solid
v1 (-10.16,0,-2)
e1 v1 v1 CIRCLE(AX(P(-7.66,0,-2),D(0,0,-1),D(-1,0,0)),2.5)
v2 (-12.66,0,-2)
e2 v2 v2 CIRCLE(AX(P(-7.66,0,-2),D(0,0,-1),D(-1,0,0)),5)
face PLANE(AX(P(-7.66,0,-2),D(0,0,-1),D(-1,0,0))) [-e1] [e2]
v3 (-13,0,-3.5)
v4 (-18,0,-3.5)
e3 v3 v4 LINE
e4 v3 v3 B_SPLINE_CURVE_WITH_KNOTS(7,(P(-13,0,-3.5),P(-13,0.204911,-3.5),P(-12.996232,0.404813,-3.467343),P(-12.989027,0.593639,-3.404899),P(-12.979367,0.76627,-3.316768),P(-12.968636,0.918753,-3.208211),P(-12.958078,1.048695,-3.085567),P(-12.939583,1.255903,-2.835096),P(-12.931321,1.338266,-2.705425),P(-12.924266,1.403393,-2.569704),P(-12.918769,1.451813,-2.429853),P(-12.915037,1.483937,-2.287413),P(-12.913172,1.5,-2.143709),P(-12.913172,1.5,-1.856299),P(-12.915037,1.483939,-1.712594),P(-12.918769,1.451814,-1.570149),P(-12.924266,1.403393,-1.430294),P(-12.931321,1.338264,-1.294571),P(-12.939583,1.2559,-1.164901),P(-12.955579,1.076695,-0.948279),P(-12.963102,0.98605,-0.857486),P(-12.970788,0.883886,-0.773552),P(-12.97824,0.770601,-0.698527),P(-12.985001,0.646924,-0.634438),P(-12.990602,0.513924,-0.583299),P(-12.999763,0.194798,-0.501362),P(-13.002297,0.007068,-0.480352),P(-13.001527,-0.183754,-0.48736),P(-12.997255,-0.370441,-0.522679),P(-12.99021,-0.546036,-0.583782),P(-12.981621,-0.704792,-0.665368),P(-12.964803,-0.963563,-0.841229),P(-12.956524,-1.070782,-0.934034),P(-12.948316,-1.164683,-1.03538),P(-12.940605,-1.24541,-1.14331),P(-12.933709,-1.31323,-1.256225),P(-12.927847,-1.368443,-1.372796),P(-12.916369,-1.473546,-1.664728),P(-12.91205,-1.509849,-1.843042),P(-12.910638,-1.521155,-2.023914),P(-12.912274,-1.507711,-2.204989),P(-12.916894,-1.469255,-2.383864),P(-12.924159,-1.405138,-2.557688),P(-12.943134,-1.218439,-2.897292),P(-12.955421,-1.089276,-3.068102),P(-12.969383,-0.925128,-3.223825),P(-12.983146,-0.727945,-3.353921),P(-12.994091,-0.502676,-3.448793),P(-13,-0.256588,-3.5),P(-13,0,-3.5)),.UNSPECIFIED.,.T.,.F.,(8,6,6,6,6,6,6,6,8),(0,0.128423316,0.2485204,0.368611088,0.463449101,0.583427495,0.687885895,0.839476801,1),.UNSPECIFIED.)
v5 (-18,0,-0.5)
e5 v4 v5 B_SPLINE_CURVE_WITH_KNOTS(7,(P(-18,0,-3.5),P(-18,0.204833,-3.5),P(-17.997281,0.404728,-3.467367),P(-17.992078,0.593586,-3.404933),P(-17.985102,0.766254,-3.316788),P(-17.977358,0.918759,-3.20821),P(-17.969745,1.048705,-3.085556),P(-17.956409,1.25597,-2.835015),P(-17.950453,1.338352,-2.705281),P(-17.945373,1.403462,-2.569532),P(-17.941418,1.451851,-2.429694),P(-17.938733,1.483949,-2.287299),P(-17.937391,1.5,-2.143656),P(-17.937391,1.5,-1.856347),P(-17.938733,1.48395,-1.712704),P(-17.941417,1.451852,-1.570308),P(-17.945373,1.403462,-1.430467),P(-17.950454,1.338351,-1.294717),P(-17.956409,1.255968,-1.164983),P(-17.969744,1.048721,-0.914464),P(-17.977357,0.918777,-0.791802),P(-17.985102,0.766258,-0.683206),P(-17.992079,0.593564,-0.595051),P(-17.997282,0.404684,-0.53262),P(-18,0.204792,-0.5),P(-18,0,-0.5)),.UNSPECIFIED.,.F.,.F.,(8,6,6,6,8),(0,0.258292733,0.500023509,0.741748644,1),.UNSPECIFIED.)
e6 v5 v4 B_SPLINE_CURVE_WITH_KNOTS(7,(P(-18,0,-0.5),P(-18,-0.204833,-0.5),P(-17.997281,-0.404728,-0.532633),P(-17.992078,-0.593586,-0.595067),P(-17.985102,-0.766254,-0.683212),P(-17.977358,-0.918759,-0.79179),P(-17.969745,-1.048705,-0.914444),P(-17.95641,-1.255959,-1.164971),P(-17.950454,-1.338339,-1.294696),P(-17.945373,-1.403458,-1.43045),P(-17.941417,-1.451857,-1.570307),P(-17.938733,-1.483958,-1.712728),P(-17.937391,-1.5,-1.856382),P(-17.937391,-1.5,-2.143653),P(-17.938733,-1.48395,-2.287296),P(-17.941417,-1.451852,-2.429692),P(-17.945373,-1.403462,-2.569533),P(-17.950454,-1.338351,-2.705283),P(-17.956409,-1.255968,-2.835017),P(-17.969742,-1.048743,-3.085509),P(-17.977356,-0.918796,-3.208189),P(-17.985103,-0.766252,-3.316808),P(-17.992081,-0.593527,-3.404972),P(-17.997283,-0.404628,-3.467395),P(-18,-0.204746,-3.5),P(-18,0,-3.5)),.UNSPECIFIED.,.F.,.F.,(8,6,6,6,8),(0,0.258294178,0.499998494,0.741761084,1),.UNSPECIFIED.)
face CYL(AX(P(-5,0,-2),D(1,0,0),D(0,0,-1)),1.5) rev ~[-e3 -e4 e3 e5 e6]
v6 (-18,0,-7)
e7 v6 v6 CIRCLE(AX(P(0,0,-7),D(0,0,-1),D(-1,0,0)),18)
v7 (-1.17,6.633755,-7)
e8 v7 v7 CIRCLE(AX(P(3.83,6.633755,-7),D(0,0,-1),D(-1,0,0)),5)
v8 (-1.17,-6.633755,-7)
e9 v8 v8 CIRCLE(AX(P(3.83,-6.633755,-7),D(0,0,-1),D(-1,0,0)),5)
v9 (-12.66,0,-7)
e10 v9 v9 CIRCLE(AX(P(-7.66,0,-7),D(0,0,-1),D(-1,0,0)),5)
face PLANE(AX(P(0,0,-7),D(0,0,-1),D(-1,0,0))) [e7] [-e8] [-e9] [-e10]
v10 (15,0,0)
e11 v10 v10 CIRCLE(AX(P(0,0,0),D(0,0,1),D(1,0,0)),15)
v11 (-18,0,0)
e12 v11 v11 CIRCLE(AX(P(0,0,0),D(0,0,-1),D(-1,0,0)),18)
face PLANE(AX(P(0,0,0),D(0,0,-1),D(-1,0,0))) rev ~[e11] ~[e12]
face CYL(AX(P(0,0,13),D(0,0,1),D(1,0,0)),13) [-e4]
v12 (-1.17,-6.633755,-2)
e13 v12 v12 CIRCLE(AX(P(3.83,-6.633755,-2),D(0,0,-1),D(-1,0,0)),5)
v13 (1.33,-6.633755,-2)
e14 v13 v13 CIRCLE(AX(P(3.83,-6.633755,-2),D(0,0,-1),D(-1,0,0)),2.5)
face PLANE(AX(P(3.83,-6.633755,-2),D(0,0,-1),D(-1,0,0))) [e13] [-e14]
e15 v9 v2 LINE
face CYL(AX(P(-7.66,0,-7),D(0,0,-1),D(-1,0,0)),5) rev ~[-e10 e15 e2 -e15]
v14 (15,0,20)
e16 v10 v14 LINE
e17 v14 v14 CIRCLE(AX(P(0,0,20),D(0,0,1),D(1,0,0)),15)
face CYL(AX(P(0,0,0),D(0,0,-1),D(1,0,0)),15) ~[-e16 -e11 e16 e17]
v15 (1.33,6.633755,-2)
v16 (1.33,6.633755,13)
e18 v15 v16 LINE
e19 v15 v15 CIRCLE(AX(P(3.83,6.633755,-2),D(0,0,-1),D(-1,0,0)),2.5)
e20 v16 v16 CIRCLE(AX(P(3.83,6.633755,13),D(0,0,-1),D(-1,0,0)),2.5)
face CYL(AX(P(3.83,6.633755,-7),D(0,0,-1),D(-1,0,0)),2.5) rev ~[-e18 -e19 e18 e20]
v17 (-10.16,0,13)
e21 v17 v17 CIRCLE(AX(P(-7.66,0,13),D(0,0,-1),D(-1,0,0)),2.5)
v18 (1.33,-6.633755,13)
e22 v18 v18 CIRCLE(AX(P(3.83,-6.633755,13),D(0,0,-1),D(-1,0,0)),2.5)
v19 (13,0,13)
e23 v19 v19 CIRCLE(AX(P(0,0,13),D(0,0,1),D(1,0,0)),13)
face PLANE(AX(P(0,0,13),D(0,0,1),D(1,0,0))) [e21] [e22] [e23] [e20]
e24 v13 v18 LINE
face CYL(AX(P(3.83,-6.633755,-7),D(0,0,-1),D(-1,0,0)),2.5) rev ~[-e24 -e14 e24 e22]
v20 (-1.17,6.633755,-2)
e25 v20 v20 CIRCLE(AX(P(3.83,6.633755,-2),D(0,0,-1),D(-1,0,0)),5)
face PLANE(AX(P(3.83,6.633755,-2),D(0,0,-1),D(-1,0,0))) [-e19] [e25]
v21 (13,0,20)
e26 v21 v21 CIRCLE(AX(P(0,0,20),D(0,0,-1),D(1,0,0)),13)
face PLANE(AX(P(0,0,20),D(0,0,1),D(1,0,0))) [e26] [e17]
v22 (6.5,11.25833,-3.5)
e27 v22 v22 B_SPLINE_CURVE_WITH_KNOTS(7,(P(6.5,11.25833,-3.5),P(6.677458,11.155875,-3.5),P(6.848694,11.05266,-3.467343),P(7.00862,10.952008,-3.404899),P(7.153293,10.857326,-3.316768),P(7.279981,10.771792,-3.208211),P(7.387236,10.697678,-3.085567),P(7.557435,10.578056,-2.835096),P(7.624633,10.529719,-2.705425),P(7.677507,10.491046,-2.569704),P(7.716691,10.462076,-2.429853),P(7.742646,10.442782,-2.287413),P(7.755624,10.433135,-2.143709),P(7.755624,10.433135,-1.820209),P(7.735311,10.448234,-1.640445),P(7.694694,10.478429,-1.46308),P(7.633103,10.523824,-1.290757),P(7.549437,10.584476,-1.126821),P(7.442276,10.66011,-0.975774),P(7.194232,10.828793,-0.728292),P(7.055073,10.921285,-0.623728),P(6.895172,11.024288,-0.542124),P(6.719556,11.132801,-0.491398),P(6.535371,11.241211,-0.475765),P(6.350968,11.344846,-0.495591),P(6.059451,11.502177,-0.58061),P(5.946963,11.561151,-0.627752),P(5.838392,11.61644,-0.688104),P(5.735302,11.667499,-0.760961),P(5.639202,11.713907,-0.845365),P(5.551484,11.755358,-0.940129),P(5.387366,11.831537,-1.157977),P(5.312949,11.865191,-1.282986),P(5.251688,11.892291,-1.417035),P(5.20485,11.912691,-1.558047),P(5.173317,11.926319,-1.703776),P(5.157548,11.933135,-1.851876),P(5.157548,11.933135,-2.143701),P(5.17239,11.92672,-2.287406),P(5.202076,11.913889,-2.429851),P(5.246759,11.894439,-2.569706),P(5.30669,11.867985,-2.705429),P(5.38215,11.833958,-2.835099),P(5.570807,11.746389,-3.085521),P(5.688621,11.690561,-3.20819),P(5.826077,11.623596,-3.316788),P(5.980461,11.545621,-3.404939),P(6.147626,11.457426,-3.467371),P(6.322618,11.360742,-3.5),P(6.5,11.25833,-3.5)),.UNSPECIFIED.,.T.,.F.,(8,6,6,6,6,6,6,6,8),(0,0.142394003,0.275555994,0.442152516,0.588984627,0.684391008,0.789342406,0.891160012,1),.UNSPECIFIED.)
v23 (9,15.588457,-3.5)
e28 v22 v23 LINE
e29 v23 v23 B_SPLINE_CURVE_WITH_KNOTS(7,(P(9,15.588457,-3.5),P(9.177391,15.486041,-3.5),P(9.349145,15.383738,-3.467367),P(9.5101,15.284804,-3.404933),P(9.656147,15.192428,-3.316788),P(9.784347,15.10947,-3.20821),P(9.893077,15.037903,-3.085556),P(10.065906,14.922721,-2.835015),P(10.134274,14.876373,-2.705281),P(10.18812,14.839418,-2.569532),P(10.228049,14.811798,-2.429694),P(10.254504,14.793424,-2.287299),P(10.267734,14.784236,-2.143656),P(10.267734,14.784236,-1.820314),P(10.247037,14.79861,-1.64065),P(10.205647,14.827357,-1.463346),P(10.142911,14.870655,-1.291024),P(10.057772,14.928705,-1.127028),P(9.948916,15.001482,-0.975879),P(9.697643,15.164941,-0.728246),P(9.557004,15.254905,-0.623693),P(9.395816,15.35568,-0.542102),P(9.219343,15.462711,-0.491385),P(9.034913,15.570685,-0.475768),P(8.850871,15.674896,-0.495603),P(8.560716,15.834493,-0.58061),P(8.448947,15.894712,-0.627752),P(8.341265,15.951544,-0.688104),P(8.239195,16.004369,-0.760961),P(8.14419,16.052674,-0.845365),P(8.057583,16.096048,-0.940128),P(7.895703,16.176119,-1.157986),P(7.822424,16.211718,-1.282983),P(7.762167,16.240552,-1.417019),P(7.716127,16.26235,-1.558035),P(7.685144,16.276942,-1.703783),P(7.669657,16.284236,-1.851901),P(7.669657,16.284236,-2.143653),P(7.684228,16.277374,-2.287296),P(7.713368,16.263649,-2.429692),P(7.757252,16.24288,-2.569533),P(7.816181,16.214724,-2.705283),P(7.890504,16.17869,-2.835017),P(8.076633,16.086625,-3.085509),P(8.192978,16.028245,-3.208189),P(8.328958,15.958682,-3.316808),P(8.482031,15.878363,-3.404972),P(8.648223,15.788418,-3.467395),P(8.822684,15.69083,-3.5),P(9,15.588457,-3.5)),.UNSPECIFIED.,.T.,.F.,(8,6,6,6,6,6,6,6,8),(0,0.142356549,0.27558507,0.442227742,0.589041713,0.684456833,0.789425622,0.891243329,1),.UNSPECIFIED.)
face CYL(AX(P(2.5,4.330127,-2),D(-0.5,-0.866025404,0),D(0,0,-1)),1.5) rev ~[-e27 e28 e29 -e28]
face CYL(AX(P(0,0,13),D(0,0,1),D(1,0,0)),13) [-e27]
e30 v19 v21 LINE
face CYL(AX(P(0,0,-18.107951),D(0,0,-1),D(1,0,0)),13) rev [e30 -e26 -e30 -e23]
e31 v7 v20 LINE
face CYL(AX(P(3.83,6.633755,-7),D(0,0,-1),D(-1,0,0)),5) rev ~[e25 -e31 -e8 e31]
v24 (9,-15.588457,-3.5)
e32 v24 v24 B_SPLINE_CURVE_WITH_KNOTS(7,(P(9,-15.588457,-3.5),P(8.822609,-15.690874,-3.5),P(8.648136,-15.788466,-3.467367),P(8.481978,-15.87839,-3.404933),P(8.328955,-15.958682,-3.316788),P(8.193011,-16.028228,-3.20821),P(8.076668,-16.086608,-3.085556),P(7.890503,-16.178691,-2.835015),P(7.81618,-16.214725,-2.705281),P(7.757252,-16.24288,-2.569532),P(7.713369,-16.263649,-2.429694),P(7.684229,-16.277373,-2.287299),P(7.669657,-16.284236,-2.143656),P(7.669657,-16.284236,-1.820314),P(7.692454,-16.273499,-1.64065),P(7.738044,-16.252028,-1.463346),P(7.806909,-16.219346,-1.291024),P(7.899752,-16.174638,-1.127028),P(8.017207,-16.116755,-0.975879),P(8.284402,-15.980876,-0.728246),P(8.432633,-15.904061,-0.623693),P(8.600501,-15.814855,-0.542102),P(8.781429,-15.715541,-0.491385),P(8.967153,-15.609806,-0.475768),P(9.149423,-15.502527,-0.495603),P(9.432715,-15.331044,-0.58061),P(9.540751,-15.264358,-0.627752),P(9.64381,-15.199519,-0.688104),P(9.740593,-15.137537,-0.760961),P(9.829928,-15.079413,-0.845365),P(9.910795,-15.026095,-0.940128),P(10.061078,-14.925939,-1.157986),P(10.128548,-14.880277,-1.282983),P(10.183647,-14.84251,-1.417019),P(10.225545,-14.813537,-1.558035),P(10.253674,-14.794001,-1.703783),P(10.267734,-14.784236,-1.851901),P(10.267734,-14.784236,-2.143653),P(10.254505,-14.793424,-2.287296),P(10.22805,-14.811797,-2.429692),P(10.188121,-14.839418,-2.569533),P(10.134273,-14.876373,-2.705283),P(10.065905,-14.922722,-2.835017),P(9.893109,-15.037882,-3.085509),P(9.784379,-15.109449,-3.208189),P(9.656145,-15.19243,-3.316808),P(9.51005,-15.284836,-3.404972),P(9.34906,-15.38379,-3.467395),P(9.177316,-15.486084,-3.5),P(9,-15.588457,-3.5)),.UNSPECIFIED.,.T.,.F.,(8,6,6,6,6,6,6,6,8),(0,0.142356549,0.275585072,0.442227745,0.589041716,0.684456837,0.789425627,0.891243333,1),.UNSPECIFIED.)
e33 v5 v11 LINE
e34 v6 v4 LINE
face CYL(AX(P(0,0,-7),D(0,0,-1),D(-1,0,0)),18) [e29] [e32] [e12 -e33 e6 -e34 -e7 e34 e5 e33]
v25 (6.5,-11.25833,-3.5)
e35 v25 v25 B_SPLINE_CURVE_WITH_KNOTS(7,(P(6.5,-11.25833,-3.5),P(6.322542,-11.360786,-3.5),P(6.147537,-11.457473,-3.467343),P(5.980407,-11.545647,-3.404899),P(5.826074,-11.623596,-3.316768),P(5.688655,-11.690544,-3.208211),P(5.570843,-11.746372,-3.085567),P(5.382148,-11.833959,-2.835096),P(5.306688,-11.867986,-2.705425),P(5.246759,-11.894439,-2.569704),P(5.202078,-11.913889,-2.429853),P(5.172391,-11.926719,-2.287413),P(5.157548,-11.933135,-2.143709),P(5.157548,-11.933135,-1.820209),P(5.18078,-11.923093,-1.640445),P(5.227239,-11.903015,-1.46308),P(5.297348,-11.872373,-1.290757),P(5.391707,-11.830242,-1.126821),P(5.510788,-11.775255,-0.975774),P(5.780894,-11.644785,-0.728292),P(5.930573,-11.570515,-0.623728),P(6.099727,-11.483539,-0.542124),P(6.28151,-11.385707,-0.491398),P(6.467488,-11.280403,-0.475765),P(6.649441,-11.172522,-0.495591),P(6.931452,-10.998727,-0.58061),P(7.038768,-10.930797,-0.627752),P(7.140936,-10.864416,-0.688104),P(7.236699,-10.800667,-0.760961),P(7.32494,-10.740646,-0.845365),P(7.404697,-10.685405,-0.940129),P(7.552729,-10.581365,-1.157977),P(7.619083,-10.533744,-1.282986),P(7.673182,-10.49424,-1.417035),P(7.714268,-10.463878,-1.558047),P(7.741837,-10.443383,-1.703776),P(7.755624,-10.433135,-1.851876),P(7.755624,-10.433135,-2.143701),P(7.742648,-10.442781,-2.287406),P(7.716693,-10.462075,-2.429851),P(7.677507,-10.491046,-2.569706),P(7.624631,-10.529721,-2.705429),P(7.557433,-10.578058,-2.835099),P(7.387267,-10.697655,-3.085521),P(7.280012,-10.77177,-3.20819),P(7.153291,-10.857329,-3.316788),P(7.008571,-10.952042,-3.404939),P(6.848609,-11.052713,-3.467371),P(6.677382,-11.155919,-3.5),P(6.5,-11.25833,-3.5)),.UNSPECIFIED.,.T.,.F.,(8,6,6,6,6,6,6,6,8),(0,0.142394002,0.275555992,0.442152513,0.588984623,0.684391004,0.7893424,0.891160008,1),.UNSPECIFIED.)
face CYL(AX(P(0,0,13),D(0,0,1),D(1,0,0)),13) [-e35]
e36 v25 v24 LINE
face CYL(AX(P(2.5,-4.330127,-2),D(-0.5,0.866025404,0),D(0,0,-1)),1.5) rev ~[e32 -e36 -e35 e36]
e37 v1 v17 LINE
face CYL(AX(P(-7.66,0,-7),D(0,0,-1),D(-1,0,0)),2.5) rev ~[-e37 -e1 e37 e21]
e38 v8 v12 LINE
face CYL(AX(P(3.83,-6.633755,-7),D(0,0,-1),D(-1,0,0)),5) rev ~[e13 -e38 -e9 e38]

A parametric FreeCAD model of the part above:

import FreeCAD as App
import Part
import Sketcher
from FreeCAD import Vector
Q = App.Units.Quantity

doc = App.newDocument("Part")
body = doc.addObject("PartDesign::Body", "Body")

sketch1 = doc.addObject("Sketcher::SketchObject", "Sketch")
body.addObject(sketch1)
sketch1.AttachmentSupport = (doc.XY_Plane, [""])
sketch1.MapMode = "FlatFace"
sketch1.addGeometry(Part.Circle(Vector(0, 0, 0), Vector(0, 0, 1), 15), False)
sketch1.addConstraint([
    Sketcher.Constraint("Coincident", 0, 3, -1, 1),
    Sketcher.Constraint("Diameter", 0, Q("30 mm")),
])
pad1 = doc.addObject("PartDesign::Pad", "Pad")
body.addObject(pad1)
pad1.Profile = sketch1
pad1.Length = 20

sketch2 = doc.addObject("Sketcher::SketchObject", "Sketch001")
body.addObject(sketch2)
sketch2.AttachmentSupport = (doc.XY_Plane, [""])
sketch2.MapMode = "FlatFace"
sketch2.AttachmentOffset = App.Placement(Vector(0, 0, 20), App.Rotation())
sketch2.addGeometry(Part.Circle(Vector(0, 0, 0), Vector(0, 0, 1), 11), False)
sketch2.addConstraint([
    Sketcher.Constraint("Coincident", 0, 3, -1, 1),
    Sketcher.Constraint("Diameter", 0, Q("21.9 mm")),
])
pad2 = doc.addObject("PartDesign::Pad", "Pad001")
body.addObject(pad2)
pad2.Profile = sketch2
pad2.Length = 3.5

sketch3 = doc.addObject("Sketcher::SketchObject", "Sketch002")
body.addObject(sketch3)
sketch3.AttachmentSupport = (doc.XY_Plane, [""])
sketch3.MapMode = "FlatFace"
sketch3.addGeometry(Part.Circle(Vector(0, 0, 0), Vector(0, 0, 1), 3), False)
sketch3.addConstraint([
    Sketcher.Constraint("Coincident", 0, 3, -1, 1),
    Sketcher.Constraint("Diameter", 0, Q("6.1 mm")),
])
pocket1 = doc.addObject("PartDesign::Pocket", "Pocket")
body.addObject(pocket1)
pocket1.Profile = sketch3
pocket1.Length = 4.1
pocket1.Reversed = True

sketch4 = doc.addObject("Sketcher::SketchObject", "Sketch003")
body.addObject(sketch4)
sketch4.AttachmentSupport = (doc.XY_Plane, [""])
sketch4.MapMode = "FlatFace"
sketch4.AttachmentOffset = App.Placement(Vector(0, 0, 4.1), App.Rotation())
sketch4.addGeometry(Part.Circle(Vector(0, 0, 0), Vector(0, 0, 1), 1.5), False)
sketch4.addConstraint([
    Sketcher.Constraint("Coincident", 0, 3, -1, 1),
    Sketcher.Constraint("Diameter", 0, Q("3 mm")),
])
pocket2 = doc.addObject("PartDesign::Pocket", "Pocket001")
body.addObject(pocket2)
pocket2.Profile = sketch4
pocket2.Length = 4
pocket2.Reversed = True

sketch5 = doc.addObject("Sketcher::SketchObject", "Sketch004")
body.addObject(sketch5)
sketch5.AttachmentSupport = (doc.XY_Plane, [""])
sketch5.MapMode = "FlatFace"
sketch5.AttachmentOffset = App.Placement(Vector(0, 0, 23.5), App.Rotation())
sketch5.addGeometry([
    Part.Circle(Vector(0, 0, 0), Vector(0, 0, 1), 10.9),
    Part.Circle(Vector(0, 0, 0), Vector(0, 0, 1), 3),
], False)
sketch5.addConstraint([
    Sketcher.Constraint("Coincident", 0, 3, -1, 1),
    Sketcher.Constraint("Coincident", 1, 3, -1, 1),
    Sketcher.Constraint("Diameter", 1, Q("6 mm")),
    Sketcher.Constraint("Diameter", 0, Q("21.9 mm")),
])
pad3 = doc.addObject("PartDesign::Pad", "Pad002")
body.addObject(pad3)
pad3.Profile = sketch5
pad3.Length = 11

sketch6 = doc.addObject("Sketcher::SketchObject", "Sketch005")
body.addObject(sketch6)
sketch6.AttachmentSupport = (doc.XY_Plane, [""])
sketch6.MapMode = "FlatFace"
sketch6.AttachmentOffset = App.Placement(Vector(0, 0, 34.5), App.Rotation())
sketch6.addGeometry([
    Part.Circle(Vector(7, 0, 0), Vector(0, 0, 1), 1.5),
    Part.Circle(Vector(-3.5, -6.1, 0), Vector(0, 0, 1), 1.5),
    Part.Circle(Vector(-3.5, 6.1, 0), Vector(0, 0, 1), 1.5),
], False)
sketch6.addConstraint([
    Sketcher.Constraint("Equal", 0, 1),
    Sketcher.Constraint("Equal", 1, 2),
    Sketcher.Constraint("Symmetric", 1, 3, 2, 3, -1),
    Sketcher.Constraint("PointOnObject", 0, 3, -1),
    Sketcher.Constraint("Diameter", 0, Q("3 mm")),
    Sketcher.Constraint("DistanceX", -1, 1, 0, 3, Q("7 mm")),
    Sketcher.Constraint("DistanceX", 1, 3, -1, 1, Q("3.5 mm")),
    Sketcher.Constraint("DistanceY", 1, 3, -1, 1, Q("6.062178 mm")),
])
pocket3 = doc.addObject("PartDesign::Pocket", "Pocket002")
body.addObject(pocket3)
pocket3.Profile = sketch6
pocket3.Type = "ThroughAll"

sketch7 = doc.addObject("Sketcher::SketchObject", "Sketch006")
body.addObject(sketch7)
sketch7.AttachmentSupport = (doc.XY_Plane, [""])
sketch7.MapMode = "FlatFace"
sketch7.AttachmentOffset = App.Placement(Vector(0, 0, -7), App.Rotation())
sketch7.addGeometry([
    Part.Circle(Vector(0, 0, 0), Vector(0, 0, 1), 18),
    Part.Circle(Vector(-3.5, -6.1, 0), Vector(0, 0, 1), 3.2),
    Part.Circle(Vector(7, 0, 0), Vector(0, 0, 1), 3.2),
    Part.Circle(Vector(0, 0, 0), Vector(0, 0, 1), 3),
    Part.Circle(Vector(-3.5, 6.1, 0), Vector(0, 0, 1), 3.2),
], False)
sketch7.addConstraint([
    Sketcher.Constraint("Coincident", 0, 3, -1, 1),
    Sketcher.Constraint("Coincident", 3, 3, -1, 1),
    Sketcher.Constraint("Equal", 1, 2),
    Sketcher.Constraint("Equal", 2, 4),
    Sketcher.Constraint("Symmetric", 1, 3, 4, 3, -1),
    Sketcher.Constraint("PointOnObject", 2, 3, -1),
    Sketcher.Constraint("Diameter", 0, Q("36 mm")),
    Sketcher.Constraint("Diameter", 1, Q("6.5 mm")),
    Sketcher.Constraint("Diameter", 3, Q("6.1 mm")),
    Sketcher.Constraint("DistanceX", -1, 1, 2, 3, Q("7 mm")),
    Sketcher.Constraint("DistanceX", 1, 3, -1, 1, Q("3.5 mm")),
    Sketcher.Constraint("DistanceY", 1, 3, -1, 1, Q("6.062178 mm")),
])
pad4 = doc.addObject("PartDesign::Pad", "Pad003")
body.addObject(pad4)
pad4.Profile = sketch7
pad4.Length = 7

sketch8 = doc.addObject("Sketcher::SketchObject", "Sketch007")
body.addObject(sketch8)
sketch8.AttachmentSupport = (doc.YZ_Plane, [""])
sketch8.MapMode = "FlatFace"
sketch8.AttachmentOffset = App.Placement(Vector(0, 0, -5), App.Rotation())
sketch8.addGeometry(Part.Circle(Vector(0, -2, 0), Vector(0, 0, 1), 1.5), False)
sketch8.addConstraint([
    Sketcher.Constraint("PointOnObject", 0, 3, -2),
    Sketcher.Constraint("Diameter", 0, Q("3 mm")),
    Sketcher.Constraint("DistanceY", 0, 3, -1, 1, Q("2 mm")),
])
pocket4 = doc.addObject("PartDesign::Pocket", "Pocket003")
body.addObject(pocket4)
pocket4.Profile = sketch8
pocket4.Length = 17
doc.recompute()

polarpattern = doc.addObject("PartDesign::PolarPattern", "PolarPattern")
body.addObject(polarpattern)
polarpattern.Originals = [pocket4]
polarpattern.Axis = (doc.Z_Axis, [""])
polarpattern.Angle = 360
polarpattern.Occurrences = 3
body.Tip = polarpattern

sketch9 = doc.addObject("Sketcher::SketchObject", "Sketch008")
body.addObject(sketch9)
sketch9.AttachmentSupport = (doc.XY_Plane, [""])
sketch9.MapMode = "FlatFace"
sketch9.AttachmentOffset = App.Placement(Vector(0, 0, 20), App.Rotation())
sketch9.addGeometry(Part.Circle(Vector(0, 0, 0), Vector(0, 0, 1), 13), False)
sketch9.addConstraint([
    Sketcher.Constraint("Coincident", 0, 3, -1, 1),
    Sketcher.Constraint("Diameter", 0, Q("26 mm")),
])
pocket5 = doc.addObject("PartDesign::Pocket", "Pocket004")
body.addObject(pocket5)
pocket5.Profile = sketch9
pocket5.Type = "ThroughAll"
pocket5.Midplane = True

sketch10 = doc.addObject("Sketcher::SketchObject", "Sketch009")
body.addObject(sketch10)
sketch10.AttachmentSupport = (doc.XY_Plane, [""])
sketch10.MapMode = "FlatFace"
sketch10.AttachmentOffset = App.Placement(Vector(0, 0, 13), App.Rotation())
sketch10.addGeometry(Part.Circle(Vector(0, 0, 0), Vector(0, 0, 1), 13), False)
sketch10.addConstraint([
    Sketcher.Constraint("Coincident", 0, 3, -1, 1),
    Sketcher.Constraint("Diameter", 0, Q("26 mm")),
])
pad5 = doc.addObject("PartDesign::Pad", "Pad004")
body.addObject(pad5)
pad5.Profile = sketch10
pad5.Length = 20
pad5.Reversed = True

sketch11 = doc.addObject("Sketcher::SketchObject", "Sketch010")
body.addObject(sketch11)
sketch11.AttachmentSupport = (doc.XY_Plane, [""])
sketch11.MapMode = "FlatFace"
sketch11.AttachmentOffset = App.Placement(Vector(0, 0, -7), App.Rotation())
sketch11.addGeometry([
    Part.Circle(Vector(-7.7, 0, 0), Vector(0, 0, 1), 2.5),
    Part.Circle(Vector(3.8, -6.6, 0), Vector(0, 0, 1), 2.5),
    Part.Circle(Vector(3.8, 6.6, 0), Vector(0, 0, 1), 2.5),
], False)
sketch11.addConstraint([
    Sketcher.Constraint("Equal", 0, 1),
    Sketcher.Constraint("Equal", 1, 2),
    Sketcher.Constraint("Symmetric", 1, 3, 2, 3, -1),
    Sketcher.Constraint("PointOnObject", 0, 3, -1),
    Sketcher.Constraint("Diameter", 0, Q("5 mm")),
    Sketcher.Constraint("DistanceX", 0, 3, -1, 1, Q("7.66 mm")),
    Sketcher.Constraint("DistanceX", -1, 1, 1, 3, Q("3.83 mm")),
    Sketcher.Constraint("DistanceY", 1, 3, 2, 3, Q("13.267509 mm")),
])
pocket6 = doc.addObject("PartDesign::Pocket", "Pocket005")
body.addObject(pocket6)
pocket6.Profile = sketch11
pocket6.Type = "ThroughAll"
pocket6.Reversed = True

sketch12 = doc.addObject("Sketcher::SketchObject", "Sketch011")
body.addObject(sketch12)
sketch12.AttachmentSupport = (doc.XY_Plane, [""])
sketch12.MapMode = "FlatFace"
sketch12.AttachmentOffset = App.Placement(Vector(0, 0, -7), App.Rotation())
sketch12.addGeometry([
    Part.Circle(Vector(-7.7, 0, 0), Vector(0, 0, 1), 5),
    Part.Circle(Vector(-7.7, 0, 0), Vector(0, 0, 1), 2.5),
    Part.Circle(Vector(3.8, 6.6, 0), Vector(0, 0, 1), 5),
    Part.Circle(Vector(3.8, 6.6, 0), Vector(0, 0, 1), 2.5),
    Part.Circle(Vector(3.8, -6.6, 0), Vector(0, 0, 1), 5),
    Part.Circle(Vector(3.8, -6.6, 0), Vector(0, 0, 1), 2.5),
], False)
sketch12.addConstraint([
    Sketcher.Constraint("Coincident", 1, 3, 0, 3),
    Sketcher.Constraint("Coincident", 3, 3, 2, 3),
    Sketcher.Constraint("Coincident", 5, 3, 4, 3),
    Sketcher.Constraint("Equal", 0, 2),
    Sketcher.Constraint("Equal", 1, 3),
    Sketcher.Constraint("Equal", 2, 4),
    Sketcher.Constraint("Equal", 3, 5),
    Sketcher.Constraint("Symmetric", 2, 3, 4, 3, -1),
    Sketcher.Constraint("PointOnObject", 0, 3, -1),
    Sketcher.Constraint("Diameter", 0, Q("10 mm")),
    Sketcher.Constraint("Diameter", 1, Q("5 mm")),
    Sketcher.Constraint("DistanceX", 0, 3, -1, 1, Q("7.66 mm")),
    Sketcher.Constraint("DistanceX", -1, 1, 2, 3, Q("3.83 mm")),
    Sketcher.Constraint("DistanceY", 4, 3, 2, 3, Q("13.267509 mm")),
])
pocket7 = doc.addObject("PartDesign::Pocket", "Pocket006")
body.addObject(pocket7)
pocket7.Profile = sketch12
pocket7.Length = 5
pocket7.Reversed = True

doc.recompute()
